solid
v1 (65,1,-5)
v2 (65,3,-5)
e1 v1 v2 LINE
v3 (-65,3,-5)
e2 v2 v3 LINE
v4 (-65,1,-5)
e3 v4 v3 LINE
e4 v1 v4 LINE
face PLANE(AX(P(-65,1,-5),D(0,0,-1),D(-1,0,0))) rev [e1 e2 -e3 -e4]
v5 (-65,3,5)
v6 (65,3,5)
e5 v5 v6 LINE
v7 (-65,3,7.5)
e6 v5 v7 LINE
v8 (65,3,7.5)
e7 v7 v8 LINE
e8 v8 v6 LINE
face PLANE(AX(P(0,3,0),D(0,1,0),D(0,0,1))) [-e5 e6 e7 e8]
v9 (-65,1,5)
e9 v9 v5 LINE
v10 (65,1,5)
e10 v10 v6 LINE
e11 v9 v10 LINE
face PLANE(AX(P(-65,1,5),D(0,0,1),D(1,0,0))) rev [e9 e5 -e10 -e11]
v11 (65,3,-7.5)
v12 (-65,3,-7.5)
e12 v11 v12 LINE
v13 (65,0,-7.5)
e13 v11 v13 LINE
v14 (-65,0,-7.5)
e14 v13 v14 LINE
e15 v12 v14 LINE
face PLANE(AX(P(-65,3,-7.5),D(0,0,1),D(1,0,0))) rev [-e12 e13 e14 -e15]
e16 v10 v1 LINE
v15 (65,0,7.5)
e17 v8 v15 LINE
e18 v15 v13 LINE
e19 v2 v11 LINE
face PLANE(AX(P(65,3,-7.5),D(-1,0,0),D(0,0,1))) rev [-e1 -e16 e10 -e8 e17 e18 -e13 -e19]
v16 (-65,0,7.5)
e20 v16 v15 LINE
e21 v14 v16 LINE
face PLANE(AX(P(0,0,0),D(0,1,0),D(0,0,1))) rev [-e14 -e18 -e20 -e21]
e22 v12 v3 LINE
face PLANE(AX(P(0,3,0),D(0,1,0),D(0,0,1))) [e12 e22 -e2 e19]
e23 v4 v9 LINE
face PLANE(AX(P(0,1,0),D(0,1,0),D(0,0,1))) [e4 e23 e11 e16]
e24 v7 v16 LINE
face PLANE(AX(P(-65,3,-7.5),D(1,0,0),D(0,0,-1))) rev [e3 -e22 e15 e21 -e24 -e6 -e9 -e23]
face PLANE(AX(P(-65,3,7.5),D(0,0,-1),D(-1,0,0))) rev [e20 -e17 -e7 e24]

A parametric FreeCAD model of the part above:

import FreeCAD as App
import Part
import Sketcher
Q = App.Units.Quantity


def add_polygon(sketch, points):
    """Adds a closed chain of lines whose ends are joined by coincident constraints."""
    first, n = sketch.GeometryCount, len(points)
    for a, b in zip(points, points[1:] + points[:1]):
        sketch.addGeometry(Part.LineSegment(App.Vector(*a, 0), App.Vector(*b, 0)), False)
    for i in range(n):
        sketch.addConstraint(Sketcher.Constraint("Coincident", first + i, 2, first + (i + 1) % n, 1))

doc = App.newDocument("Part")
body = doc.addObject("PartDesign::Body", "Body")

sketch1 = body.newObject("Sketcher::SketchObject", "Sketch")
sketch1.AttachmentSupport = (doc.getObject("XZ_Plane"), [""])
sketch1.MapMode = "FlatFace"
add_polygon(sketch1, [(-65, -7.5), (-65, 7.5), (65, 7.5), (65, -7.5)])
sketch1.addConstraint(Sketcher.Constraint("Vertical", 0))
sketch1.addConstraint(Sketcher.Constraint("Horizontal", 1))
sketch1.addConstraint(Sketcher.Constraint("Vertical", 2))
sketch1.addConstraint(Sketcher.Constraint("Horizontal", 3))
sketch1.addConstraint(Sketcher.Constraint("Symmetric", 0, 2, 2, 2, -1, 1))
sketch1.addConstraint(Sketcher.Constraint("DistanceX", 1, 1, 1, 2, Q("130 mm")))
sketch1.addConstraint(Sketcher.Constraint("DistanceY", 0, 1, 0, 2, Q("15 mm")))
pad1 = body.newObject("PartDesign::Pad", "Pad")
pad1.Profile = sketch1
pad1.Length = 3
pad1.Reversed = True

sketch2 = body.newObject("Sketcher::SketchObject", "Sketch001")
sketch2.AttachmentSupport = (doc.getObject("XZ_Plane"), [""])
sketch2.MapMode = "FlatFace"
sketch2.AttachmentOffset = App.Placement(App.Vector(0, 0, -3), App.Rotation())
add_polygon(sketch2, [(-65, -5), (-65, 5), (65, 5), (65, -5)])
sketch2.addConstraint(Sketcher.Constraint("Vertical", 0))
sketch2.addConstraint(Sketcher.Constraint("Horizontal", 1))
sketch2.addConstraint(Sketcher.Constraint("Vertical", 2))
sketch2.addConstraint(Sketcher.Constraint("Horizontal", 3))
sketch2.addConstraint(Sketcher.Constraint("Symmetric", 0, 2, 2, 2, -1, 1))
sketch2.addConstraint(Sketcher.Constraint("DistanceX", 1, 1, 1, 2, Q("130 mm")))
sketch2.addConstraint(Sketcher.Constraint("DistanceY", 0, 1, 0, 2, Q("10 mm")))
pocket1 = body.newObject("PartDesign::Pocket", "Pocket")
pocket1.Profile = sketch2
pocket1.Length = 2
pocket1.Reversed = True

doc.recompute()
